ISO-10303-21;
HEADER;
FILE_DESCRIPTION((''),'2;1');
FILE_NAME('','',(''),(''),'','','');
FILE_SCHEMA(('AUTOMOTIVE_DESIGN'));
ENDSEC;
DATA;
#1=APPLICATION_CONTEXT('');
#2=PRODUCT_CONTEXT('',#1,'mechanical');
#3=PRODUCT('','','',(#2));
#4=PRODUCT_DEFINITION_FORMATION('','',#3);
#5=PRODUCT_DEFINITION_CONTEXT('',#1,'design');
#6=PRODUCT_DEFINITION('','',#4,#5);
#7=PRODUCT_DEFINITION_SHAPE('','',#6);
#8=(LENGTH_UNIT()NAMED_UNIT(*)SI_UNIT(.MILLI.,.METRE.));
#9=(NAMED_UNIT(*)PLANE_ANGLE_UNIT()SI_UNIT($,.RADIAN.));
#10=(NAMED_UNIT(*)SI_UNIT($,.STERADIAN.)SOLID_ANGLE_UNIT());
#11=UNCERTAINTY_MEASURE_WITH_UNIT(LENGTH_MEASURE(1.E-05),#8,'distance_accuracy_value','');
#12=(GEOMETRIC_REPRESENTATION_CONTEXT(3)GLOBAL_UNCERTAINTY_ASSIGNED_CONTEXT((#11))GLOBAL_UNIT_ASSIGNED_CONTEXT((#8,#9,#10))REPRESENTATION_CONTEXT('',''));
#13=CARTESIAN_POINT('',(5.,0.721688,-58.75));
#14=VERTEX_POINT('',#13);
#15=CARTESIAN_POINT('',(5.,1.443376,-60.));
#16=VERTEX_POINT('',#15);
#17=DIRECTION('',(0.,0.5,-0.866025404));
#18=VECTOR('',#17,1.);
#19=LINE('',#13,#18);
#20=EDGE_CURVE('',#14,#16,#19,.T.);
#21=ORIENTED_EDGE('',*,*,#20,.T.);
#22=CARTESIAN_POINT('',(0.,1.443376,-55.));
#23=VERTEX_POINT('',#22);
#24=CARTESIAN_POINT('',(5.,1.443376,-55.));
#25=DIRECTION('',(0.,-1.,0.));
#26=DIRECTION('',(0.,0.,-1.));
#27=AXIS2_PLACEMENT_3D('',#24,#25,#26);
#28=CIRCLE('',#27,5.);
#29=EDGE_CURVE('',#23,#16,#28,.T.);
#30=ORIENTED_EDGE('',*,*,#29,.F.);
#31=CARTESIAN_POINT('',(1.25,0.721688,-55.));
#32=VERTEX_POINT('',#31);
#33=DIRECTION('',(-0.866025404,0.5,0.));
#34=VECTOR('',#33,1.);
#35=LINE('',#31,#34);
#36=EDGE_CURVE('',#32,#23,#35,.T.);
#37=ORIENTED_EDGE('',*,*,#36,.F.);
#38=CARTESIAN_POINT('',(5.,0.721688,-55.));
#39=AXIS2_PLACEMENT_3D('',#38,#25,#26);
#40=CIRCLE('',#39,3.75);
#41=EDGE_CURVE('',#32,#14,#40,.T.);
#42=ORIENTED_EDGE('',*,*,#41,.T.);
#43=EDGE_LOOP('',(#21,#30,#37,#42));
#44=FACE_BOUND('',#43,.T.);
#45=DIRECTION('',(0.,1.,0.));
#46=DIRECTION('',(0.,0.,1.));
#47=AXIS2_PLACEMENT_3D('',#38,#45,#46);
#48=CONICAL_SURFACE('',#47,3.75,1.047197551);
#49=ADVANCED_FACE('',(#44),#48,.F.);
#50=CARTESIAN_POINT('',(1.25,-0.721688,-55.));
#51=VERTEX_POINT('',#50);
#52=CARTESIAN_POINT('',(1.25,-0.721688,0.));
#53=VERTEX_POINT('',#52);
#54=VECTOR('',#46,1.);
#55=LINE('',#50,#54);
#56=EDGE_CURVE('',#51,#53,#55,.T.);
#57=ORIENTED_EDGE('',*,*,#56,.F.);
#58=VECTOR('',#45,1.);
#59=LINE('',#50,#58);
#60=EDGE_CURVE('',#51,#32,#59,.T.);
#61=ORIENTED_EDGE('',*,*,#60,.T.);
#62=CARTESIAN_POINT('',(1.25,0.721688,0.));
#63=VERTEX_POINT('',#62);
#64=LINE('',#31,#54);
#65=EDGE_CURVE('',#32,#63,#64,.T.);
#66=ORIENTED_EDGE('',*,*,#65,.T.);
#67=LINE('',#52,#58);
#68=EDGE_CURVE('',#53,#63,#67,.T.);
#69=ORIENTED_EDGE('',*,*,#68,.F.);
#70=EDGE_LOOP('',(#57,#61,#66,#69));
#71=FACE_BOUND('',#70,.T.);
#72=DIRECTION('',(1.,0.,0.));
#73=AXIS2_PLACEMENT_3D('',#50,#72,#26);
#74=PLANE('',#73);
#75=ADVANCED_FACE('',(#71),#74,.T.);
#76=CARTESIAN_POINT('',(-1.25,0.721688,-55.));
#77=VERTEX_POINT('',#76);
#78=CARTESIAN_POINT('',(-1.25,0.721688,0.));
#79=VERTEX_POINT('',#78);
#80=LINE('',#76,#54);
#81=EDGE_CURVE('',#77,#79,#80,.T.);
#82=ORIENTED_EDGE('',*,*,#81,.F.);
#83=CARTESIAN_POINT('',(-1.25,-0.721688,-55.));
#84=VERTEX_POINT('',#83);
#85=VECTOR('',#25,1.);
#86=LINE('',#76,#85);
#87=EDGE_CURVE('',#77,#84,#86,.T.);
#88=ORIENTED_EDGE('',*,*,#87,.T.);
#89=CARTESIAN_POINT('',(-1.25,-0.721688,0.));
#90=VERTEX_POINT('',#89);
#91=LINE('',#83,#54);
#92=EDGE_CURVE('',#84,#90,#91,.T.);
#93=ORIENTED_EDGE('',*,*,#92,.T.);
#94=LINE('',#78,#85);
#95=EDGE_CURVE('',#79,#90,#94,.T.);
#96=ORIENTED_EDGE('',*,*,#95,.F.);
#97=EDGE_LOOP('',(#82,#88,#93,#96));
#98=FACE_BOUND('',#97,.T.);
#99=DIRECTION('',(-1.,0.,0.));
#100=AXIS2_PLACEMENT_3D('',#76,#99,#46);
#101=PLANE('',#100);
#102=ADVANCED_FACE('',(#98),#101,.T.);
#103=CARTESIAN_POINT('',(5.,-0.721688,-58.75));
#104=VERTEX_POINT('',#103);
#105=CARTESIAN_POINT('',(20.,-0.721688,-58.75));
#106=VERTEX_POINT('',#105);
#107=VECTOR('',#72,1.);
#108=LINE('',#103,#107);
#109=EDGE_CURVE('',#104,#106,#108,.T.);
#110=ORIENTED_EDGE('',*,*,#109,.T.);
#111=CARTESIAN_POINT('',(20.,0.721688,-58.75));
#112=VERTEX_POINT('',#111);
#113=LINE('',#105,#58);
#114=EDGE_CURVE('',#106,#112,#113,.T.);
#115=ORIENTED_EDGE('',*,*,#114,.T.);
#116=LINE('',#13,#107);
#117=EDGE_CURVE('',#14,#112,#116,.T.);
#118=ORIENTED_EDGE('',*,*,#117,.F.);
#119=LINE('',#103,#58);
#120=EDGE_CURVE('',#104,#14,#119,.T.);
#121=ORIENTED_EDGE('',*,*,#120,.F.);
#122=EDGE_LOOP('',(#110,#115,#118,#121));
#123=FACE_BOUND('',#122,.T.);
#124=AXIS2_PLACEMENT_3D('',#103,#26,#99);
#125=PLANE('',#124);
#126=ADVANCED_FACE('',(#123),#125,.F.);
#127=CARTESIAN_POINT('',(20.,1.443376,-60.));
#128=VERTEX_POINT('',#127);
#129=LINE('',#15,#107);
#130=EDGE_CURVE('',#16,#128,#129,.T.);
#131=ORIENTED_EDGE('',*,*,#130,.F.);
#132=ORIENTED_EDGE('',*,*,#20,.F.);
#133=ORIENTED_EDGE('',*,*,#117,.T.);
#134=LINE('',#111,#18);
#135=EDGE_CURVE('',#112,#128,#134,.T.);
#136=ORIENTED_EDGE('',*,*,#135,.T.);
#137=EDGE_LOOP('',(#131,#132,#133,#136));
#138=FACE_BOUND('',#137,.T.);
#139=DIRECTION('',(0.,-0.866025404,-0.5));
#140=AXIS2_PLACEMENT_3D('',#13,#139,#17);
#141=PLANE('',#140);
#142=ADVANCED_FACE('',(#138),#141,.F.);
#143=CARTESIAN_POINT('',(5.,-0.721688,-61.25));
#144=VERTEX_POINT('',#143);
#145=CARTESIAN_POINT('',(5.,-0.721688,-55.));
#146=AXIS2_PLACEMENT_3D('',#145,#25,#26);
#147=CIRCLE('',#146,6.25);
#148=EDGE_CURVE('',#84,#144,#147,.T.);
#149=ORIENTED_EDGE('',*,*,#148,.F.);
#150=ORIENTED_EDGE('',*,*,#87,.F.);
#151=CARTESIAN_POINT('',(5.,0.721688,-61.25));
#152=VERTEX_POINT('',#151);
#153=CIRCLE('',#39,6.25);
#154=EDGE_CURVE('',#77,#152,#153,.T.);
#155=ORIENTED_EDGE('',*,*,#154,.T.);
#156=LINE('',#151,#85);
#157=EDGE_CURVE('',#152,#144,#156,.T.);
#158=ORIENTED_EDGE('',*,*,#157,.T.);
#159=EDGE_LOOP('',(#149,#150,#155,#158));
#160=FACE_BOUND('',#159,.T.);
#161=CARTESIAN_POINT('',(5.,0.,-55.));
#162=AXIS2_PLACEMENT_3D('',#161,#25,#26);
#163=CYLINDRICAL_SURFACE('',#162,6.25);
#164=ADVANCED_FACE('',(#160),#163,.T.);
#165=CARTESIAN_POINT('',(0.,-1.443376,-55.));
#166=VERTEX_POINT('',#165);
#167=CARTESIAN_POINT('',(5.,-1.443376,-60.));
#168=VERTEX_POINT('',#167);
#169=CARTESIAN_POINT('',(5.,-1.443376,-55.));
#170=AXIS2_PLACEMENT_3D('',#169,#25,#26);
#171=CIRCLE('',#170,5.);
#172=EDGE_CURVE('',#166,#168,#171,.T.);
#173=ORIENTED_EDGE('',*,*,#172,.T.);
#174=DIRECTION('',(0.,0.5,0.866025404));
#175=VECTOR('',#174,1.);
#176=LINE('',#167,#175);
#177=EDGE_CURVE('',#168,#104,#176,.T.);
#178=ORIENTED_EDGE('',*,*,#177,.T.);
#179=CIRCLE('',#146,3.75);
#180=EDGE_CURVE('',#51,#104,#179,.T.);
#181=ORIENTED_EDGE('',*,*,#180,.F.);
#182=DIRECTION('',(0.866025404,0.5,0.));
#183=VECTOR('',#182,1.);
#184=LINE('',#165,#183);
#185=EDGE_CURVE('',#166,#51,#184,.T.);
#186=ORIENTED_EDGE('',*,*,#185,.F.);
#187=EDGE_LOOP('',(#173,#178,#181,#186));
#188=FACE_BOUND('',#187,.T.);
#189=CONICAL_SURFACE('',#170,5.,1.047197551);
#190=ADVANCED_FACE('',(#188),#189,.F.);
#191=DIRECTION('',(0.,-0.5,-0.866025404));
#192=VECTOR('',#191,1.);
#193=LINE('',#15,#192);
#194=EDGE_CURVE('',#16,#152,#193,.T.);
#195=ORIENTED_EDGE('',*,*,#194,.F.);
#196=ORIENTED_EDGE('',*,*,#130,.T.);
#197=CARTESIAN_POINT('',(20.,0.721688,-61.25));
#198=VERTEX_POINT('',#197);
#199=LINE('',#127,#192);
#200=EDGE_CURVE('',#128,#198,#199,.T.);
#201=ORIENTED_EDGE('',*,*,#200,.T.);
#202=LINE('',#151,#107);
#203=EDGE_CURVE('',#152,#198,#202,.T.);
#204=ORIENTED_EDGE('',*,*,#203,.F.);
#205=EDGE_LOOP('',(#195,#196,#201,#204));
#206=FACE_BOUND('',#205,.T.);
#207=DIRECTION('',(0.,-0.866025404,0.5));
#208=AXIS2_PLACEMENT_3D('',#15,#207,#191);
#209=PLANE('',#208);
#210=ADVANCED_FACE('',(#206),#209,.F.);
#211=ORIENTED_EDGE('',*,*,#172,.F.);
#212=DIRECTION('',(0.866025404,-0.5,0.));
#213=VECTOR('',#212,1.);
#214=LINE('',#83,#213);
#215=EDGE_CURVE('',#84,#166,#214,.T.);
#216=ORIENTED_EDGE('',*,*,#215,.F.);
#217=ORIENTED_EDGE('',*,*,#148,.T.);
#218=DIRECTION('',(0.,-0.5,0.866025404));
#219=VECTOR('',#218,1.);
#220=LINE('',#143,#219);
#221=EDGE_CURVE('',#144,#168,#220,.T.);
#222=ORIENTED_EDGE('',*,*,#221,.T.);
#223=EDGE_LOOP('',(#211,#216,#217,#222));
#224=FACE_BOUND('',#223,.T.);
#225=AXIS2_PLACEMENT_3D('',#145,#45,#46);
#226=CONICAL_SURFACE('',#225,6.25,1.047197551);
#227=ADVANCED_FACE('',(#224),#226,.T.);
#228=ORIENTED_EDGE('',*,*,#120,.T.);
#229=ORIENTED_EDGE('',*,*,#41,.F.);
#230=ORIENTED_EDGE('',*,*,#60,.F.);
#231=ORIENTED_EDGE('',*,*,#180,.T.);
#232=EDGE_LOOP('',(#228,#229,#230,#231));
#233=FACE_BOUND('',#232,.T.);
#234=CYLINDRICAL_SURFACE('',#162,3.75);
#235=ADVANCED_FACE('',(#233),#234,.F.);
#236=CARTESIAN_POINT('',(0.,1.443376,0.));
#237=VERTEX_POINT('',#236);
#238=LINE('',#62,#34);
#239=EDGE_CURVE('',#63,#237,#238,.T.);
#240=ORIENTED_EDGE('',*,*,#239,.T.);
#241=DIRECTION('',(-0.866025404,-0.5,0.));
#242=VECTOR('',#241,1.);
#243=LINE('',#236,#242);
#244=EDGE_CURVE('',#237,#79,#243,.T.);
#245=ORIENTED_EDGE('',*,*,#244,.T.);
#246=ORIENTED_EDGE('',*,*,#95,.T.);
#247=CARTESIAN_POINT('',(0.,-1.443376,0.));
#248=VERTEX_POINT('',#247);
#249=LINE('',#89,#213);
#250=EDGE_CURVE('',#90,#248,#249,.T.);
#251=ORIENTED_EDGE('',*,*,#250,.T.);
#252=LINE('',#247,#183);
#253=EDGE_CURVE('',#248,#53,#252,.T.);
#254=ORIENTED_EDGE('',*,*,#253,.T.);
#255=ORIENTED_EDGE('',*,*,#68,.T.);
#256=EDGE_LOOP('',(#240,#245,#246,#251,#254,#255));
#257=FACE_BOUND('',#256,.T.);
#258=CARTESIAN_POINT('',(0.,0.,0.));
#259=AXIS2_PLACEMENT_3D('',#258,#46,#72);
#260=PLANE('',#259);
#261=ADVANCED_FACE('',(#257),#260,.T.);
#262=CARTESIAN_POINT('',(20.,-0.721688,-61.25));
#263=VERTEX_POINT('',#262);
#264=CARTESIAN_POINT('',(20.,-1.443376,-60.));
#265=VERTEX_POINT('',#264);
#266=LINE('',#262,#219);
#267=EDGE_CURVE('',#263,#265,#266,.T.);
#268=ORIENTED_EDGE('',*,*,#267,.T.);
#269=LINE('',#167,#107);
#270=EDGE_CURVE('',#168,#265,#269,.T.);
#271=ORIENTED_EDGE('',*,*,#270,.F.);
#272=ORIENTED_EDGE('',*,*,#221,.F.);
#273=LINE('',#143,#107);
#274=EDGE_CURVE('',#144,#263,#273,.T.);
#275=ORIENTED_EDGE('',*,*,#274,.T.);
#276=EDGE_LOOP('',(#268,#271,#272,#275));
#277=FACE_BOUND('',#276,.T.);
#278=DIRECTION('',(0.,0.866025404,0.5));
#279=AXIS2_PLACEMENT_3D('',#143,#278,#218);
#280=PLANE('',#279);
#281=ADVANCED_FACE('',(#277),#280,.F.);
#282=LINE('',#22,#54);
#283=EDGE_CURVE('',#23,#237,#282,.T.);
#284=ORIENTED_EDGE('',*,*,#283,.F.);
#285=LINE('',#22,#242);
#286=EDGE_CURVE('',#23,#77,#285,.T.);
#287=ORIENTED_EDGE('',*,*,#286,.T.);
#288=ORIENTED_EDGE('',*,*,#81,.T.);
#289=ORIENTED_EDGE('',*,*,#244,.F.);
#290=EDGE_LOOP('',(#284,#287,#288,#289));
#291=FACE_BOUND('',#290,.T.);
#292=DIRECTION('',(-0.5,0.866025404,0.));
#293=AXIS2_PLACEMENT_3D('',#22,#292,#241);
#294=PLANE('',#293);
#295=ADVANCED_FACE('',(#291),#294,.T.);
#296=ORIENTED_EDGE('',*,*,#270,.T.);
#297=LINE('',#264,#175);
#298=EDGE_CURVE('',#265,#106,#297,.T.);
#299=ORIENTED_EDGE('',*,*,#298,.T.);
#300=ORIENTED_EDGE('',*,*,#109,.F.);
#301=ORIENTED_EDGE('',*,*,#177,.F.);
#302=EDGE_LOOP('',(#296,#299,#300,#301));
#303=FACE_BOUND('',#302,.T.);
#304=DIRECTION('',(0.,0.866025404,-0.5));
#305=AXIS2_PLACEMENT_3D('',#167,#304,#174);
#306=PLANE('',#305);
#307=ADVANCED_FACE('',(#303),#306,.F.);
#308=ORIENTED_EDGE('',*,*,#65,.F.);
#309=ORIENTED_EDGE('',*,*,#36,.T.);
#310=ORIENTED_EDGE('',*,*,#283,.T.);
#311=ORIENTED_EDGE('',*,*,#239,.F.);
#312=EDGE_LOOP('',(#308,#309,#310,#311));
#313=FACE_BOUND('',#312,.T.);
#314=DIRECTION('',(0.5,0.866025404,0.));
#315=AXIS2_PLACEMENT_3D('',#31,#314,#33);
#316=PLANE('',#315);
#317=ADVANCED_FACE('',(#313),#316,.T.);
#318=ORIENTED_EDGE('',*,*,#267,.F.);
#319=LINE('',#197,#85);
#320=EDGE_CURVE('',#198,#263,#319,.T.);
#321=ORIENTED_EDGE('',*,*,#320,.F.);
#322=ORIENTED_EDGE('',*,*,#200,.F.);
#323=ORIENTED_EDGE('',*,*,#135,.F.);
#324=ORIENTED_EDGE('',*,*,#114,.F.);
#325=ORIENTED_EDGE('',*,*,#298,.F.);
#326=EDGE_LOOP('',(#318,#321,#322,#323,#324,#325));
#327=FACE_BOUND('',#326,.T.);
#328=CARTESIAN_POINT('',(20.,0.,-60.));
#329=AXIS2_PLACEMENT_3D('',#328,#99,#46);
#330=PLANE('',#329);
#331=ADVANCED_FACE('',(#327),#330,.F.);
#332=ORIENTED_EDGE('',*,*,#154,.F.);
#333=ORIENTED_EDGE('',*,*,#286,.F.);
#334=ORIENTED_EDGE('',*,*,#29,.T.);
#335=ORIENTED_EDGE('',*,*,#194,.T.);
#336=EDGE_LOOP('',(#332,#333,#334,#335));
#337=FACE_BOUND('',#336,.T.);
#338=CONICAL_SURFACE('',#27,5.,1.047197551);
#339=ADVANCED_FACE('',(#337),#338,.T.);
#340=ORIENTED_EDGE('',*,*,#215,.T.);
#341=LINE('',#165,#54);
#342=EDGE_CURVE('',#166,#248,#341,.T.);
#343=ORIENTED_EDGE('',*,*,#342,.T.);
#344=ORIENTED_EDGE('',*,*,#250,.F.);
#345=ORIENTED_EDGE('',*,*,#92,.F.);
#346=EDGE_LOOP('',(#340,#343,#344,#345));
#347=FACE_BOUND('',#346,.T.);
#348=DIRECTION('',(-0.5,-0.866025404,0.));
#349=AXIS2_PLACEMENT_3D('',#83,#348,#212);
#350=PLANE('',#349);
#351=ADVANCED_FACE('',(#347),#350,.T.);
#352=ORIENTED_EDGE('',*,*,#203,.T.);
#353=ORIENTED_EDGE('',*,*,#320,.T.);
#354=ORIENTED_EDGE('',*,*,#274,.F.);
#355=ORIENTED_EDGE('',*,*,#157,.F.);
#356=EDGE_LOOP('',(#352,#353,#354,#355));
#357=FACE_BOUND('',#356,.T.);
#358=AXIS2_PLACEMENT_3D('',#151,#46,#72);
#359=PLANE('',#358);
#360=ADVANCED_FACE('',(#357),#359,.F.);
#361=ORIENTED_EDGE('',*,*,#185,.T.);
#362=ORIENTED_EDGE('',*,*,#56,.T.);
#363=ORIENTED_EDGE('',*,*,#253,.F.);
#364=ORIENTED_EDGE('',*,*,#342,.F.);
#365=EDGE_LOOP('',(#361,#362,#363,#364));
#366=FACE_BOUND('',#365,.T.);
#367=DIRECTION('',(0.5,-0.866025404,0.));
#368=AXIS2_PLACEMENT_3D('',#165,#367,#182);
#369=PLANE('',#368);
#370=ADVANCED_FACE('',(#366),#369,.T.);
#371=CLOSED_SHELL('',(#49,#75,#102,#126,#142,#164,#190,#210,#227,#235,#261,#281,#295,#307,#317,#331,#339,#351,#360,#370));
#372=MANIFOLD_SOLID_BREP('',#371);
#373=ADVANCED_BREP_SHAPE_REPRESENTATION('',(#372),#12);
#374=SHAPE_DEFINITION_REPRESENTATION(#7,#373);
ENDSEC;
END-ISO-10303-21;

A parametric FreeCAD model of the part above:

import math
import FreeCAD as App
import Part
import Sketcher
Q = App.Units.Quantity


def add_polygon(sketch, points):
    """Adds a closed chain of lines whose ends are joined by coincident constraints."""
    first, n = sketch.GeometryCount, len(points)
    for a, b in zip(points, points[1:] + points[:1]):
        sketch.addGeometry(Part.LineSegment(App.Vector(*a, 0), App.Vector(*b, 0)), False)
    for i in range(n):
        sketch.addConstraint(Sketcher.Constraint("Coincident", first + i, 2, first + (i + 1) % n, 1))

doc = App.newDocument("Part")
params = doc.addObject("Spreadsheet::Sheet", "Params")
for row, (alias, value) in enumerate([
    ("sketch2_radius", "5 mm"),
    ("sketch2_width", "15 mm"),
    ("sketch2_height", "55 mm"),
], start=1):
    params.set(f"A{row}", alias)
    params.set(f"B{row}", "=" + value)
    params.setAlias(f"B{row}", alias)

body = doc.addObject("PartDesign::Body", "Body")

sketch1 = body.newObject("Sketcher::SketchObject", "Sketch")
sketch1.AttachmentSupport = (doc.getObject("XY_Plane"), [""])
sketch1.MapMode = "FlatFace"
add_polygon(sketch1, [(0, 1.443376), (-1.25, 0.721688), (-1.25, -0.721688), (0, -1.443376), (1.25, -0.721688), (1.25, 0.721688)])
sketch1.addConstraint(Sketcher.Constraint("Vertical", 1))
sketch1.addConstraint(Sketcher.Constraint("Vertical", 4))
sketch1.addConstraint(Sketcher.Constraint("Symmetric", 0, 2, 3, 2, -1, 1))
sketch1.addConstraint(Sketcher.Constraint("Symmetric", 2, 2, 5, 2, -1, 1))
sketch1.addConstraint(Sketcher.Constraint("PointOnObject", 2, 2, -2))
sketch1.addConstraint(Sketcher.Constraint("Parallel", 2, 5))
sketch1.addConstraint(Sketcher.Constraint("Horizontal", 1, 2, 3, 2))
sketch1.addConstraint(Sketcher.Constraint("Angle", 0, Q("-150 deg")))
sketch1.addConstraint(Sketcher.Constraint("DistanceX", 1, 2, 3, 2, 2.5))
sketch1.addConstraint(Sketcher.Constraint("DistanceY", 1, 2, 1, 1, 1.443376))

sketch2 = body.newObject("Sketcher::SketchObject", "Sketch001")
sketch2.AttachmentSupport = (doc.getObject("XZ_Plane"), [""])
sketch2.MapMode = "FlatFace"
sketch2.addGeometry(Part.LineSegment(App.Vector(0, 0, 0), App.Vector(0, -55, 0)), False)
sketch2.addGeometry(Part.ArcOfCircle(Part.Circle(App.Vector(5, -55, 0), App.Vector(0, 0, 1), 5), math.radians(180), math.radians(270)), False)
sketch2.addGeometry(Part.LineSegment(App.Vector(5, -60, 0), App.Vector(20, -60, 0)), False)
sketch2.addConstraint(Sketcher.Constraint("Tangent", 0, 2, 1, 1))
sketch2.addConstraint(Sketcher.Constraint("Tangent", 1, 2, 2, 1))
sketch2.addConstraint(Sketcher.Constraint("Vertical", 0))
sketch2.addConstraint(Sketcher.Constraint("Horizontal", 2))
sketch2.addConstraint(Sketcher.Constraint("Coincident", 0, 1, -1, 1))
sketch2.addConstraint(Sketcher.Constraint("Radius", 1, 5.0))
sketch2.addConstraint(Sketcher.Constraint("DistanceX", 2, 1, 2, 2, 15.0))
sketch2.addConstraint(Sketcher.Constraint("DistanceY", 0, 2, 0, 1, 55.0))
sketch2.setExpression("Constraints[5]", "Params.sketch2_radius")
sketch2.setExpression("Constraints[6]", "Params.sketch2_width")
sketch2.setExpression("Constraints[7]", "Params.sketch2_height")
doc.recompute()

additivepipe = body.newObject("PartDesign::AdditivePipe", "AdditivePipe")
additivepipe.Profile = sketch1
additivepipe.Spine = (sketch2, ["Edge1", "Edge2", "Edge3"])

doc.recompute()
